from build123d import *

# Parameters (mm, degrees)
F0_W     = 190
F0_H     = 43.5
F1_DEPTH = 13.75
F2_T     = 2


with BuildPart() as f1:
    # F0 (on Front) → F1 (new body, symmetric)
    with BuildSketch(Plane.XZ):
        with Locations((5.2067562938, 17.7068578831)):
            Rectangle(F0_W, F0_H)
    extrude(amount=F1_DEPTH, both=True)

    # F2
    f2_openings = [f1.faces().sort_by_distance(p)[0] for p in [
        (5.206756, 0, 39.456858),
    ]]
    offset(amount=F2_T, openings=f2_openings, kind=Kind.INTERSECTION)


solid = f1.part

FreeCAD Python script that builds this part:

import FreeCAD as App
import Part
import Sketcher
from FreeCAD import Vector


def faces_at(feature, points):
    """Names of the faces that lie closest to the given points."""
    faces = feature.Shape.Faces
    near = lambda p: min(range(len(faces)), key=lambda i: faces[i].distToShape(Part.Vertex(*p))[0])
    return sorted({f"Face{near(p) + 1}" for p in points})


def add_polygon(sketch, points):
    """Adds a closed chain of lines whose ends are joined by coincident constraints."""
    first, n = sketch.GeometryCount, len(points)
    for a, b in zip(points, points[1:] + points[:1]):
        sketch.addGeometry(Part.LineSegment(App.Vector(*a, 0), App.Vector(*b, 0)), False)
    for i in range(n):
        sketch.addConstraint(Sketcher.Constraint("Coincident", first + i, 2, first + (i + 1) % n, 1))

doc = App.newDocument("Part")
body = doc.addObject("PartDesign::Body", "Body")

# Sketch on XZ plane
sketch1 = body.newObject("Sketcher::SketchObject", "Sketch")
sketch1.AttachmentSupport = (doc.getObject("XZ_Plane"), [""])
sketch1.MapMode = "FlatFace"
add_polygon(sketch1, [(-90, 39), (-90, -4), (100, -4), (100, 39)])  # lines 0-3
sketch1.addConstraint([
    Sketcher.Constraint("Vertical", 0),
    Sketcher.Constraint("Horizontal", 1),
    Sketcher.Constraint("Vertical", 2),
    Sketcher.Constraint("Horizontal", 3),
    Sketcher.Constraint("DistanceX", 1, 1, 1, 2, 190.0),
    Sketcher.Constraint("DistanceY", 0, 2, 0, 1, 43.5),
    Sketcher.Constraint("DistanceX", 0, 2, -1, 1, 89.793244),
    Sketcher.Constraint("DistanceY", 0, 2, -1, 1, 4.043142),
])
pad1 = body.newObject("PartDesign::Pad", "Pad")
pad1.Profile = sketch1
pad1.Length = 27.5
pad1.Midplane = True
doc.recompute()

thickness = body.newObject("PartDesign::Thickness", "Thickness")
thickness.Base = (pad1, faces_at(pad1, [(5.207, 0, 39.457)]))
thickness.Value = 2
thickness.Reversed = False
thickness.Join = "Intersection"

doc.recompute()
